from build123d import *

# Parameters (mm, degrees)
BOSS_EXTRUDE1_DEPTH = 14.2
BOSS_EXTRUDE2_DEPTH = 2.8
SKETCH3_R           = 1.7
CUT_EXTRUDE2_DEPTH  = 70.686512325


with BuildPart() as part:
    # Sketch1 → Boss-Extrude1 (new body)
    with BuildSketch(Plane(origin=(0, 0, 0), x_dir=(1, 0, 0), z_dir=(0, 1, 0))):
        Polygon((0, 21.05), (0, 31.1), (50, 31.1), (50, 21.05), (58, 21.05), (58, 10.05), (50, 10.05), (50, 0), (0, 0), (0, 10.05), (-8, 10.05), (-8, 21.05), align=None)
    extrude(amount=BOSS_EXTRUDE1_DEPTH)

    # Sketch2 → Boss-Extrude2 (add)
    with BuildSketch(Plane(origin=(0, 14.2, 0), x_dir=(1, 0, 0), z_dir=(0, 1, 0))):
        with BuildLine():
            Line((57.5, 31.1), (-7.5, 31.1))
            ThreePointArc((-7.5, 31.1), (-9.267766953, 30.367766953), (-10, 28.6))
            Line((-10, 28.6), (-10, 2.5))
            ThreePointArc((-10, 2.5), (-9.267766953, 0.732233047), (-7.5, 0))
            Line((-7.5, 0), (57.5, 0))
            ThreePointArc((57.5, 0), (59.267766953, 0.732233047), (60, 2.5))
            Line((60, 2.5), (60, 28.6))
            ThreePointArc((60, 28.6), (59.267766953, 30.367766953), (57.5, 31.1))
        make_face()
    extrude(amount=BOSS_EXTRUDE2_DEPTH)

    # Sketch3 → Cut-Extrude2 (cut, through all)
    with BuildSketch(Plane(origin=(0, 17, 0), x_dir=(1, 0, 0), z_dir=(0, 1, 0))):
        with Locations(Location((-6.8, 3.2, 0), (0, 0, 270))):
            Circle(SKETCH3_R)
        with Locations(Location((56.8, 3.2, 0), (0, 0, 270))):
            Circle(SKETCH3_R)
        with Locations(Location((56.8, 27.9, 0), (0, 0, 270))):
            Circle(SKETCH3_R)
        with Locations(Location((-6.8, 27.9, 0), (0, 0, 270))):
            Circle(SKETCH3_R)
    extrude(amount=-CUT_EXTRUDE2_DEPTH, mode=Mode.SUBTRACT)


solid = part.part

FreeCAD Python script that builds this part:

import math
import FreeCAD as App
import Part
import Sketcher
Q = App.Units.Quantity


def add_polygon(sketch, points):
    """Adds a closed chain of lines whose ends are joined by coincident constraints."""
    first, n = sketch.GeometryCount, len(points)
    for a, b in zip(points, points[1:] + points[:1]):
        sketch.addGeometry(Part.LineSegment(App.Vector(*a, 0), App.Vector(*b, 0)), False)
    for i in range(n):
        sketch.addConstraint(Sketcher.Constraint("Coincident", first + i, 2, first + (i + 1) % n, 1))

doc = App.newDocument("Part")
body = doc.addObject("PartDesign::Body", "Body")

sketch1 = body.newObject("Sketcher::SketchObject", "Sketch")
sketch1.AttachmentSupport = (doc.getObject("XZ_Plane"), [""])
sketch1.MapMode = "FlatFace"
add_polygon(sketch1, [(0, -31), (0, -21), (-8, -21), (-8, -10), (0, -10), (0, 0), (50, 0), (50, -10), (58, -10), (58, -21), (50, -21), (50, -31)])
sketch1.addConstraint([
    Sketcher.Constraint("Vertical", 0),
    Sketcher.Constraint("Horizontal", 1),
    Sketcher.Constraint("Vertical", 2),
    Sketcher.Constraint("Horizontal", 3),
    Sketcher.Constraint("Vertical", 4),
    Sketcher.Constraint("Horizontal", 5),
    Sketcher.Constraint("Vertical", 6),
    Sketcher.Constraint("Horizontal", 7),
    Sketcher.Constraint("Vertical", 8),
    Sketcher.Constraint("Horizontal", 9),
    Sketcher.Constraint("Vertical", 10),
    Sketcher.Constraint("Horizontal", 11),
    Sketcher.Constraint("Coincident", 4, 2, -1, 1),
    Sketcher.Constraint("PointOnObject", 0, 2, -2),
    Sketcher.Constraint("Horizontal", 3, 2, 6, 2),
    Sketcher.Constraint("Horizontal", 1, 2, 8, 2),
    Sketcher.Constraint("Vertical", 6, 2, 9, 2),
    Sketcher.Constraint("Equal", 3, 7),
    Sketcher.Constraint("Equal", 0, 4),
    Sketcher.Constraint("DistanceX", 1, 2, 1, 1, Q("8 mm")),
    Sketcher.Constraint("DistanceX", 5, 1, 5, 2, Q("50 mm")),
    Sketcher.Constraint("DistanceY", 2, 1, 2, 2, Q("11 mm")),
    Sketcher.Constraint("DistanceY", 0, 1, 0, 2, Q("10.05 mm")),
])
pad1 = body.newObject("PartDesign::Pad", "Pad")
pad1.Profile = sketch1
pad1.Length = 14.2
pad1.Reversed = True

sketch2 = body.newObject("Sketcher::SketchObject", "Sketch001")
sketch2.AttachmentSupport = (doc.getObject("XZ_Plane"), [""])
sketch2.MapMode = "FlatFace"
sketch2.AttachmentOffset = App.Placement(App.Vector(0, 0, -14.2), App.Rotation())
sketch2.addGeometry([
    Part.LineSegment(App.Vector(57.5, -31.1, 0), App.Vector(-7.5, -31.1, 0)),
    Part.ArcOfCircle(Part.Circle(App.Vector(-7.5, -28.6, 0), App.Vector(0, 0, 1), 2.5), math.radians(180), math.radians(270)),
    Part.LineSegment(App.Vector(-10, -28.6, 0), App.Vector(-10, -2.5, 0)),
    Part.ArcOfCircle(Part.Circle(App.Vector(-7.5, -2.5, 0), App.Vector(0, 0, 1), 2.5), math.radians(90), math.radians(180)),
    Part.LineSegment(App.Vector(-7.5, 0, 0), App.Vector(57.5, 0, 0)),
    Part.ArcOfCircle(Part.Circle(App.Vector(57.5, -2.5, 0), App.Vector(0, 0, 1), 2.5), math.radians(0), math.radians(90)),
    Part.LineSegment(App.Vector(60, -2.5, 0), App.Vector(60, -28.6, 0)),
    Part.ArcOfCircle(Part.Circle(App.Vector(57.5, -28.6, 0), App.Vector(0, 0, 1), 2.5), math.radians(-90), math.radians(0)),
], False)
sketch2.addConstraint([
    Sketcher.Constraint("Tangent", 0, 2, 1, 2),
    Sketcher.Constraint("Tangent", 1, 1, 2, 1),
    Sketcher.Constraint("Tangent", 2, 2, 3, 2),
    Sketcher.Constraint("Tangent", 3, 1, 4, 1),
    Sketcher.Constraint("Tangent", 4, 2, 5, 2),
    Sketcher.Constraint("Tangent", 5, 1, 6, 1),
    Sketcher.Constraint("Tangent", 6, 2, 7, 2),
    Sketcher.Constraint("Tangent", 7, 1, 0, 1),
    Sketcher.Constraint("Horizontal", 0),
    Sketcher.Constraint("Vertical", 2),
    Sketcher.Constraint("Horizontal", 4),
    Sketcher.Constraint("Vertical", 6),
    Sketcher.Constraint("Equal", 1, 3),
    Sketcher.Constraint("Equal", 3, 5),
    Sketcher.Constraint("Equal", 5, 7),
    Sketcher.Constraint("PointOnObject", 3, 1, -1),
    Sketcher.Constraint("Radius", 1, Q("2.5 mm")),
    Sketcher.Constraint("DistanceX", 0, 2, 0, 1, Q("65 mm")),
    Sketcher.Constraint("DistanceY", 2, 1, 2, 2, Q("26.1 mm")),
    Sketcher.Constraint("DistanceX", 1, 1, -1, 1, Q("10 mm")),
])
pad2 = body.newObject("PartDesign::Pad", "Pad001")
pad2.Profile = sketch2
pad2.Length = 2.8
pad2.Reversed = True

sketch3 = body.newObject("Sketcher::SketchObject", "Sketch002")
sketch3.AttachmentSupport = (doc.getObject("XZ_Plane"), [""])
sketch3.MapMode = "FlatFace"
sketch3.AttachmentOffset = App.Placement(App.Vector(0, 0, -17), App.Rotation())
sketch3.addGeometry([
    Part.Circle(App.Vector(-6.8, -3.2, 0), App.Vector(0, 0, 1), 1.7),
    Part.Circle(App.Vector(56.8, -3.2, 0), App.Vector(0, 0, 1), 1.7),
    Part.Circle(App.Vector(56.8, -27.9, 0), App.Vector(0, 0, 1), 1.7),
    Part.Circle(App.Vector(-6.8, -27.9, 0), App.Vector(0, 0, 1), 1.7),
], False)
sketch3.addConstraint([
    Sketcher.Constraint("Equal", 0, 1),
    Sketcher.Constraint("Equal", 1, 2),
    Sketcher.Constraint("Equal", 2, 3),
    Sketcher.Constraint("Horizontal", 0, 3, 1, 3),
    Sketcher.Constraint("Horizontal", 2, 3, 3, 3),
    Sketcher.Constraint("Vertical", 1, 3, 2, 3),
    Sketcher.Constraint("Vertical", 0, 3, 3, 3),
    Sketcher.Constraint("Diameter", 0, Q("3.4 mm")),
    Sketcher.Constraint("DistanceX", 0, 3, -1, 1, Q("6.8 mm")),
    Sketcher.Constraint("DistanceY", 0, 3, -1, 1, Q("3.2 mm")),
    Sketcher.Constraint("DistanceX", -1, 1, 1, 3, Q("56.8 mm")),
    Sketcher.Constraint("DistanceY", 2, 3, -1, 1, Q("27.9 mm")),
])
pocket1 = body.newObject("PartDesign::Pocket", "Pocket")
pocket1.Profile = sketch3
pocket1.Type = "ThroughAll"
pocket1.Reversed = True

doc.recompute()
